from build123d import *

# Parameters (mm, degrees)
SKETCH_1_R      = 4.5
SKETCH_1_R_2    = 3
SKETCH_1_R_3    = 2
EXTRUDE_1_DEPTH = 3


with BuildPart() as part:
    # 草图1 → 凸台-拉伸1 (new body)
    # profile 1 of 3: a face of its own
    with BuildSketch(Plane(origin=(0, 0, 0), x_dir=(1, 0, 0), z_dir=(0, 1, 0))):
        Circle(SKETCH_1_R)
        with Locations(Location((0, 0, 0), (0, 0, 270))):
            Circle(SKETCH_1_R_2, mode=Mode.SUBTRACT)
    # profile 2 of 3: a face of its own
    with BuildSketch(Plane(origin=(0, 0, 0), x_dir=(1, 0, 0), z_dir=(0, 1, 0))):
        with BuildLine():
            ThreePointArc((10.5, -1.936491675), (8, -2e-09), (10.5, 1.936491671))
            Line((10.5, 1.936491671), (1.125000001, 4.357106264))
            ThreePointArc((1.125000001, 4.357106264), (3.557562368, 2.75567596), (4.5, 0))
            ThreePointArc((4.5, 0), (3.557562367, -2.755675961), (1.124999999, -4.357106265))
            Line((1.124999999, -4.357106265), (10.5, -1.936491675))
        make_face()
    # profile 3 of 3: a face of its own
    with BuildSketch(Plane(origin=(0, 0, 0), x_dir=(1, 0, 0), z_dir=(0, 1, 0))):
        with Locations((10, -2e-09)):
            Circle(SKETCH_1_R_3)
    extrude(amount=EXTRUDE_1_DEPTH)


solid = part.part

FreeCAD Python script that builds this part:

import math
import FreeCAD as App
import Part
import Sketcher
Q = App.Units.Quantity

doc = App.newDocument("Part")
params = doc.addObject("Spreadsheet::Sheet", "Params")
for row, (alias, value) in enumerate([
    ("sketch1_diameter", "6 mm"),
    ("sketch1_radius", "2 mm"),
    ("sketch1_radius2", "4.5 mm"),
    ("pad1_length", "3 mm"),
], start=1):
    params.set(f"A{row}", alias)
    params.set(f"B{row}", "=" + value)
    params.setAlias(f"B{row}", alias)

body = doc.addObject("PartDesign::Body", "Body")

# Sketch on XZ plane
sketch1 = body.newObject("Sketcher::SketchObject", "Sketch")
sketch1.AttachmentSupport = (doc.getObject("XZ_Plane"), [""])
sketch1.MapMode = "FlatFace"
sketch1.addGeometry(Part.ArcOfCircle(Part.Circle(App.Vector(0, 0, 0), App.Vector(0, 0, 1), 4.5), math.radians(75.522488), math.radians(284.477512)), False)
sketch1.addGeometry(Part.LineSegment(App.Vector(1.125, 4.357106, 0), App.Vector(10.5, 1.936492, 0)), False)
sketch1.addGeometry(Part.ArcOfCircle(Part.Circle(App.Vector(10, 0, 0), App.Vector(0, 0, 1), 2), math.radians(-75.522488), math.radians(75.522488)), False)
sketch1.addGeometry(Part.LineSegment(App.Vector(10.5, -1.936492, 0), App.Vector(1.125, -4.357106, 0)), False)
sketch1.addGeometry(Part.Circle(App.Vector(0, 0, 0), App.Vector(0, 0, 1), 3), False)
sketch1.addConstraint(Sketcher.Constraint("Tangent", 0, 1, 1, 1))
sketch1.addConstraint(Sketcher.Constraint("Tangent", 1, 2, 2, 2))
sketch1.addConstraint(Sketcher.Constraint("Tangent", 2, 1, 3, 1))
sketch1.addConstraint(Sketcher.Constraint("Tangent", 3, 2, 0, 2))
sketch1.addConstraint(Sketcher.Constraint("Coincident", 0, 3, -1, 1))
sketch1.addConstraint(Sketcher.Constraint("Coincident", 4, 3, -1, 1))
sketch1.addConstraint(Sketcher.Constraint("PointOnObject", 2, 3, -1))
sketch1.addConstraint(Sketcher.Constraint("Diameter", 4, Q("6 mm")))
sketch1.addConstraint(Sketcher.Constraint("Radius", 2, Q("2 mm")))
sketch1.addConstraint(Sketcher.Constraint("Radius", 0, Q("4.5 mm")))
sketch1.addConstraint(Sketcher.Constraint("DistanceX", -1, 1, 2, 3, Q("10 mm")))
sketch1.setExpression("Constraints[7]", "Params.sketch1_diameter")
sketch1.setExpression("Constraints[8]", "Params.sketch1_radius")
sketch1.setExpression("Constraints[9]", "Params.sketch1_radius2")
pad1 = body.newObject("PartDesign::Pad", "Pad")
pad1.Profile = sketch1
pad1.setExpression("Length", "Params.pad1_length")
pad1.Reversed = True

doc.recompute()
